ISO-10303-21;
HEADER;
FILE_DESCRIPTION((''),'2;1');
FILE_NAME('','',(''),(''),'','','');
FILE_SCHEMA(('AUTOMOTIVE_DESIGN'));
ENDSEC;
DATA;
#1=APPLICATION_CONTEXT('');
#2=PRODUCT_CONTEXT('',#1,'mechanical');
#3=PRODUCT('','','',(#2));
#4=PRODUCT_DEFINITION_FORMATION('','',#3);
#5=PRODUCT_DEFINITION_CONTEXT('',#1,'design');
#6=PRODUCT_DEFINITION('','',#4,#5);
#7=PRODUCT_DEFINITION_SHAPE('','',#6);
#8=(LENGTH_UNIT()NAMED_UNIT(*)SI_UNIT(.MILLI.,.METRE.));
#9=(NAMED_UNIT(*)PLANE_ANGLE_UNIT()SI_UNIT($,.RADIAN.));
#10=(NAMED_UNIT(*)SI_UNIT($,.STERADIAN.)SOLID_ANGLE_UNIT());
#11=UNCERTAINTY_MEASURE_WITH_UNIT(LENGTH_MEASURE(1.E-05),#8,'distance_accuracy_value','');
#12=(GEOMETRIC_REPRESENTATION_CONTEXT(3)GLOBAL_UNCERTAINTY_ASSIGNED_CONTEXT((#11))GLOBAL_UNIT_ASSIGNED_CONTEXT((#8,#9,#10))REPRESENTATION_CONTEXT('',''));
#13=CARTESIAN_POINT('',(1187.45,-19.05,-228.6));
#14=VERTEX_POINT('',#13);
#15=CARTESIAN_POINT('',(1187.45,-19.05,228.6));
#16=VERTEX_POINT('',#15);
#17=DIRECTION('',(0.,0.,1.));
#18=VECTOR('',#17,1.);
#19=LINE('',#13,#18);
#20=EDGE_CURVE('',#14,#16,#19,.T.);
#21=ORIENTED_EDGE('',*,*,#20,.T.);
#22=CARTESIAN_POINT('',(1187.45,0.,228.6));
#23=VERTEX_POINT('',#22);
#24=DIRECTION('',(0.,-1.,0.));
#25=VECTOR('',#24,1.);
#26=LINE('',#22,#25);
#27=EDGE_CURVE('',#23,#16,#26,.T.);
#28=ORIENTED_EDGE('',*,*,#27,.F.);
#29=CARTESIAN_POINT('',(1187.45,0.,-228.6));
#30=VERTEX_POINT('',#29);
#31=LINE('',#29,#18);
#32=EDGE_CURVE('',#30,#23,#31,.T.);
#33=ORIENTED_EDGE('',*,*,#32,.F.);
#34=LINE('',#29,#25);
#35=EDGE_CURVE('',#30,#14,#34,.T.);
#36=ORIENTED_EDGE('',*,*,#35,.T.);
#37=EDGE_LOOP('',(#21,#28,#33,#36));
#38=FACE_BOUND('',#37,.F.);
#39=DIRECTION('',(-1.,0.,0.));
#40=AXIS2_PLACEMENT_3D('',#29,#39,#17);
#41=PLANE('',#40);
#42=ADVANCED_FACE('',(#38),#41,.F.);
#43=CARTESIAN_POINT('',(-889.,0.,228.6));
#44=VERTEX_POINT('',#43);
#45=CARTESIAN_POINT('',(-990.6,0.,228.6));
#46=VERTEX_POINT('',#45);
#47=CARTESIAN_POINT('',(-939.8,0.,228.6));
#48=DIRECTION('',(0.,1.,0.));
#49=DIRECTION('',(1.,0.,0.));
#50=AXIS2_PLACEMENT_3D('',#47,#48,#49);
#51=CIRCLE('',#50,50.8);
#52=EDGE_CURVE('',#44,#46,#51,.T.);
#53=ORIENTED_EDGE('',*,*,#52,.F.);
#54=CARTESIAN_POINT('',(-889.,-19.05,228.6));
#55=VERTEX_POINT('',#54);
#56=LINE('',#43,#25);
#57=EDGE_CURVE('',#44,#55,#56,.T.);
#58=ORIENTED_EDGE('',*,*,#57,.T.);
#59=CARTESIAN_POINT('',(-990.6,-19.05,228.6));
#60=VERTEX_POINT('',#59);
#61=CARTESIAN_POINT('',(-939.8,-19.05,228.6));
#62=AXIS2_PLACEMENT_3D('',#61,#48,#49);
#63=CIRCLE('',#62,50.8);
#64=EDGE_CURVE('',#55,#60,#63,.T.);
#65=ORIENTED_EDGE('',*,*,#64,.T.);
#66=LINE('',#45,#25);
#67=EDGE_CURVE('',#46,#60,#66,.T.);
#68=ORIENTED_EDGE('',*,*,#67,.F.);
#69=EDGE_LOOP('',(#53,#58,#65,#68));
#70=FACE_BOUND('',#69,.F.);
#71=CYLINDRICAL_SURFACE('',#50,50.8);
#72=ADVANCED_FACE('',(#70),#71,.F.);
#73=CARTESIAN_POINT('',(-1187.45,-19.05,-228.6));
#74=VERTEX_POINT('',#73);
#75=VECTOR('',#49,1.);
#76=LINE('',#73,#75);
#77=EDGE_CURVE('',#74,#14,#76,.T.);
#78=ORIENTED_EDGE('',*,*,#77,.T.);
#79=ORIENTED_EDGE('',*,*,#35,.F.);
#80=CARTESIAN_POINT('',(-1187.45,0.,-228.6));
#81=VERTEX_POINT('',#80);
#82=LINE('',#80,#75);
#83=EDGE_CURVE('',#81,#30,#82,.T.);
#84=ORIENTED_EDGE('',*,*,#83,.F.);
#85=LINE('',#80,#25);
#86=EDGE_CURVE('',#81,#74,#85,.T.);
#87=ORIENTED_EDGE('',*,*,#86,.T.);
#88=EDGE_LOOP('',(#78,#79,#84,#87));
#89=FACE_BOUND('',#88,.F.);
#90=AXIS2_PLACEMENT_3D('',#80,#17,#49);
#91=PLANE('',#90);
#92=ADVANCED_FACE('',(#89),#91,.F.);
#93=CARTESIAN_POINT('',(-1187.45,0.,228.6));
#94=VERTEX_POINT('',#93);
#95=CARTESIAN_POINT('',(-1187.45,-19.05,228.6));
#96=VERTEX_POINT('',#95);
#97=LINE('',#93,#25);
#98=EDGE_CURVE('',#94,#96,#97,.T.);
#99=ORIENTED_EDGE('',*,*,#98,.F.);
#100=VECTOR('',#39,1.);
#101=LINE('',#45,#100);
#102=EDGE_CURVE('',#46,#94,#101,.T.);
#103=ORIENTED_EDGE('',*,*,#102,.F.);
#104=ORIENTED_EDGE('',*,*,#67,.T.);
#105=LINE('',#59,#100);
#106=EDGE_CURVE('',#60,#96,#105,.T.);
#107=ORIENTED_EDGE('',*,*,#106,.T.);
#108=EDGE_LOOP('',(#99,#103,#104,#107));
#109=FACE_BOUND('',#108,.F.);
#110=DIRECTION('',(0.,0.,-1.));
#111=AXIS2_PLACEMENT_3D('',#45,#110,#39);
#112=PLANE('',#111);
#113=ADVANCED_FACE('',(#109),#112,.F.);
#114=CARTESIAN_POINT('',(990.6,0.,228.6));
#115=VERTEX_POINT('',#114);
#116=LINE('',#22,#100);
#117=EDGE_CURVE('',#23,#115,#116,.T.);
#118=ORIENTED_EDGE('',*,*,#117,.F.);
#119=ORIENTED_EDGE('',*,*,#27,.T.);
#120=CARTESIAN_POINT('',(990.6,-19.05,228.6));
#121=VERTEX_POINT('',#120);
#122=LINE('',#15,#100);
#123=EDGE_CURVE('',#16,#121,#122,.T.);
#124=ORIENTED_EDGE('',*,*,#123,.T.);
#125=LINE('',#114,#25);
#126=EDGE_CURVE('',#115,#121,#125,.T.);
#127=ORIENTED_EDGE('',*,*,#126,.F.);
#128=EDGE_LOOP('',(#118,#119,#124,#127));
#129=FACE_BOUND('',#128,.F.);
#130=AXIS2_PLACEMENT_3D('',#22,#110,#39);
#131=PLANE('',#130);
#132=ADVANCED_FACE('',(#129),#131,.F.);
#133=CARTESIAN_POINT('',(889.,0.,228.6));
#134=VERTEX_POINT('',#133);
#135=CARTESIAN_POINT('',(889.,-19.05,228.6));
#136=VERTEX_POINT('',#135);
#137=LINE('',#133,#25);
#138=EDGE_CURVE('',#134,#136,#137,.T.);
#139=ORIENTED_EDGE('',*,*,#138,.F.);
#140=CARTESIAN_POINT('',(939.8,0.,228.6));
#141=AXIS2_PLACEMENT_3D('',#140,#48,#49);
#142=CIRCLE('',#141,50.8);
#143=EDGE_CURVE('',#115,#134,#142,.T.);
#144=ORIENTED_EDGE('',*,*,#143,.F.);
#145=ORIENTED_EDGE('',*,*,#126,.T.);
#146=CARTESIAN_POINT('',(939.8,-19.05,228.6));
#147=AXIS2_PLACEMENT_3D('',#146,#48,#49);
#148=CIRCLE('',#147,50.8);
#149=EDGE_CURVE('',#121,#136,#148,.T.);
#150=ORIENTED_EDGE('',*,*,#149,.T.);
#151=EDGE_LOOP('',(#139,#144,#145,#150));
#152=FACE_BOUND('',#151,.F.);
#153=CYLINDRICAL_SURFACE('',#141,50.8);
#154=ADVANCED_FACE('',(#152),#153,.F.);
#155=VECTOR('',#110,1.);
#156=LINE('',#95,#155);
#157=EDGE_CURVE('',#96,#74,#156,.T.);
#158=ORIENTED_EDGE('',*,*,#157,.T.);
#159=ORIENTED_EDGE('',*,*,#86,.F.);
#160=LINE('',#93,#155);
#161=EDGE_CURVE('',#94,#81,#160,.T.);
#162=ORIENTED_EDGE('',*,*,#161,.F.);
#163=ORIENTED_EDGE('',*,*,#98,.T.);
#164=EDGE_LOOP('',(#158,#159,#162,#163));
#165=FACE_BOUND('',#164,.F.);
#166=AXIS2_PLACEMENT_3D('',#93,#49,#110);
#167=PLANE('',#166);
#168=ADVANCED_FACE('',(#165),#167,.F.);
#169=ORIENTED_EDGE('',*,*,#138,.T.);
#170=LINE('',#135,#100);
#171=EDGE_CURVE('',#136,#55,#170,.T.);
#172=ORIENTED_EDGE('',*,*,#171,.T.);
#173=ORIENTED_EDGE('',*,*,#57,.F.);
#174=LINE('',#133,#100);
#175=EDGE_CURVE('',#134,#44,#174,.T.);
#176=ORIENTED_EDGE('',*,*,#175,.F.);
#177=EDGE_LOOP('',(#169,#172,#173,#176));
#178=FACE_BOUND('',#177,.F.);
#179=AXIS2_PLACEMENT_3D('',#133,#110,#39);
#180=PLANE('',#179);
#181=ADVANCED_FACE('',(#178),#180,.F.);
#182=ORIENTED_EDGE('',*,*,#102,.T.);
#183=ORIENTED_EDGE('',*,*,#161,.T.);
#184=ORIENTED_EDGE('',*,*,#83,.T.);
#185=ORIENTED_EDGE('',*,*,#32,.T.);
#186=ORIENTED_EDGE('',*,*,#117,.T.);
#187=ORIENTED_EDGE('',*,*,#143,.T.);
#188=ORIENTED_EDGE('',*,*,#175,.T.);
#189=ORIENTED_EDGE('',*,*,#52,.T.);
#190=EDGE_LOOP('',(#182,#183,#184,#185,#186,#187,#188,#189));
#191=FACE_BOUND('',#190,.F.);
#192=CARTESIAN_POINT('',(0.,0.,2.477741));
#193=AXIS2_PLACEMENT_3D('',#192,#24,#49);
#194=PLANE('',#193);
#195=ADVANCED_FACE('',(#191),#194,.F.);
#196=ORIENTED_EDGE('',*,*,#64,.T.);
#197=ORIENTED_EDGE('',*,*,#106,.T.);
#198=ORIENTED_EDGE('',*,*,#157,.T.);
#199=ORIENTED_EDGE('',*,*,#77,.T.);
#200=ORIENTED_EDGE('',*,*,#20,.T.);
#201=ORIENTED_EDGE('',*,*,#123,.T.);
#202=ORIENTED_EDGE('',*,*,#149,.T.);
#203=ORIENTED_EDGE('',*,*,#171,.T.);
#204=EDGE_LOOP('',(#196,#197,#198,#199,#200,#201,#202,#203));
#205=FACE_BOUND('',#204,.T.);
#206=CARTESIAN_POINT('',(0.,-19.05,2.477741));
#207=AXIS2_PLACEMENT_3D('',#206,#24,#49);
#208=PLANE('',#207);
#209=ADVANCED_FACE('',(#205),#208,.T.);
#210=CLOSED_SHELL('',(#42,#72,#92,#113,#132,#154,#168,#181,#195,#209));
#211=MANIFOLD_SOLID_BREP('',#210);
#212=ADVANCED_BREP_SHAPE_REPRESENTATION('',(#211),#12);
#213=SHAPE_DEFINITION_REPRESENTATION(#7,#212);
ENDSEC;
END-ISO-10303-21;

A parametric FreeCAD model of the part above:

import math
import FreeCAD as App
import Part
import Sketcher

V = App.Vector
Q = App.Units.Quantity

doc = App.newDocument("Part")
body = doc.addObject("PartDesign::Body", "Body")

sketch1 = doc.addObject("Sketcher::SketchObject", "Sketch")
body.addObject(sketch1)
sketch1.AttachmentSupport = (doc.XZ_Plane, [""])
sketch1.MapMode = "FlatFace"
sketch1.addGeometry(Part.LineSegment(V(1187.45, -228.6, 0), V(1187.45, 228.6, 0)), False)
sketch1.addGeometry(Part.LineSegment(V(1187.45, 228.6, 0), V(990.6, 228.6, 0)), False)
sketch1.addGeometry(Part.ArcOfCircle(Part.Circle(V(939.8, 228.6, 0), V(0, 0, 1), 50.8), math.radians(180), math.radians(360)), False)
sketch1.addGeometry(Part.LineSegment(V(889, 228.6, 0), V(-889, 228.6, 0)), False)
sketch1.addGeometry(Part.ArcOfCircle(Part.Circle(V(-939.8, 228.6, 0), V(0, 0, 1), 50.8), math.radians(180), math.radians(360)), False)
sketch1.addGeometry(Part.LineSegment(V(-990.6, 228.6, 0), V(-1187.45, 228.6, 0)), False)
sketch1.addGeometry(Part.LineSegment(V(-1187.45, 228.6, 0), V(-1187.45, -228.6, 0)), False)
sketch1.addGeometry(Part.LineSegment(V(-1187.45, -228.6, 0), V(1187.45, -228.6, 0)), False)
sketch1.addConstraint(Sketcher.Constraint("Coincident", 0, 2, 1, 1))
sketch1.addConstraint(Sketcher.Constraint("Coincident", 1, 2, 2, 2))
sketch1.addConstraint(Sketcher.Constraint("Coincident", 2, 1, 3, 1))
sketch1.addConstraint(Sketcher.Constraint("Coincident", 3, 2, 4, 2))
sketch1.addConstraint(Sketcher.Constraint("Coincident", 4, 1, 5, 1))
sketch1.addConstraint(Sketcher.Constraint("Coincident", 5, 2, 6, 1))
sketch1.addConstraint(Sketcher.Constraint("Coincident", 6, 2, 7, 1))
sketch1.addConstraint(Sketcher.Constraint("Coincident", 7, 2, 0, 1))
sketch1.addConstraint(Sketcher.Constraint("Vertical", 0))
sketch1.addConstraint(Sketcher.Constraint("Horizontal", 1))
sketch1.addConstraint(Sketcher.Constraint("Horizontal", 3))
sketch1.addConstraint(Sketcher.Constraint("Horizontal", 5))
sketch1.addConstraint(Sketcher.Constraint("Vertical", 6))
sketch1.addConstraint(Sketcher.Constraint("Horizontal", 7))
sketch1.addConstraint(Sketcher.Constraint("Equal", 2, 4))
sketch1.addConstraint(Sketcher.Constraint("Symmetric", 0, 2, 6, 2, -1, 1))
sketch1.addConstraint(Sketcher.Constraint("Symmetric", 2, 3, 4, 3, -2))
sketch1.addConstraint(Sketcher.Constraint("Horizontal", 4, 3, 0, 2))
sketch1.addConstraint(Sketcher.Constraint("Horizontal", 1, 2, 2, 1))
sketch1.addConstraint(Sketcher.Constraint("Horizontal", 3, 2, 4, 1))
sketch1.addConstraint(Sketcher.Constraint("Radius", 2, Q("2 in")))
sketch1.addConstraint(Sketcher.Constraint("DistanceX", 3, 2, 3, 1, Q("70 in")))
sketch1.addConstraint(Sketcher.Constraint("DistanceY", 0, 1, 0, 2, Q("18 in")))
sketch1.addConstraint(Sketcher.Constraint("DistanceX", 7, 1, 7, 2, Q("93.5 in")))
pad1 = doc.addObject("PartDesign::Pad", "Pad")
body.addObject(pad1)
pad1.Profile = sketch1
pad1.Length = Q("0.75 in")

doc.recompute()
